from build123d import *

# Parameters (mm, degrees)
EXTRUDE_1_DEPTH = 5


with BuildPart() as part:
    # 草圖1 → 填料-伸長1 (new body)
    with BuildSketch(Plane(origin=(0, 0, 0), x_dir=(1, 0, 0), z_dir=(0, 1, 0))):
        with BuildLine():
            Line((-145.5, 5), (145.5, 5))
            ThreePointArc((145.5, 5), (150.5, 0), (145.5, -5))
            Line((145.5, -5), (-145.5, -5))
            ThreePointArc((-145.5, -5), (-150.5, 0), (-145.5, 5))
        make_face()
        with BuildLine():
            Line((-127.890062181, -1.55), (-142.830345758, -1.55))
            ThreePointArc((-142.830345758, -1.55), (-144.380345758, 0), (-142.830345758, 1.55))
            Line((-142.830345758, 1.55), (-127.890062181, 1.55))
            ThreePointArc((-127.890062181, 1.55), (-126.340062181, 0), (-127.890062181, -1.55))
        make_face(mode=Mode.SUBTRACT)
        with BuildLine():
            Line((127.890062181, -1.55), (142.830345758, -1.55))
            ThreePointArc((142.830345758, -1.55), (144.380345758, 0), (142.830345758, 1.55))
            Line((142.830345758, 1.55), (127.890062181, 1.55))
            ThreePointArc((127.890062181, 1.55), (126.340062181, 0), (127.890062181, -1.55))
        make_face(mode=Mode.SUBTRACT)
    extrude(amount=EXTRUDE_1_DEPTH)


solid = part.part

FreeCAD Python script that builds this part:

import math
import FreeCAD as App
import Part
import Sketcher

doc = App.newDocument("Part")
params = doc.addObject("Spreadsheet::Sheet", "Params")
for row, (alias, value) in enumerate([
    ("sketch1_radius", "5 mm"),
    ("sketch1_width", "291 mm"),
    ("sketch1_radius2", "1.55 mm"),
    ("pad1_length", "5 mm"),
], start=1):
    params.set(f"A{row}", alias)
    params.set(f"B{row}", "=" + value)
    params.setAlias(f"B{row}", alias)

body = doc.addObject("PartDesign::Body", "Body")

sketch1 = doc.addObject("Sketcher::SketchObject", "Sketch")
body.addObject(sketch1)
sketch1.AttachmentSupport = (doc.XZ_Plane, [""])
sketch1.MapMode = "FlatFace"
sketch1.addGeometry([
    Part.LineSegment(App.Vector(145.5, -5, 0), App.Vector(-145.5, -5, 0)),
    Part.ArcOfCircle(Part.Circle(App.Vector(-145.5, 0, 0), App.Vector(0, 0, 1), 5), math.radians(90), math.radians(270)),
    Part.LineSegment(App.Vector(-145.5, 5, 0), App.Vector(145.5, 5, 0)),
    Part.ArcOfCircle(Part.Circle(App.Vector(145.5, 0, 0), App.Vector(0, 0, 1), 5), math.radians(-90), math.radians(90)),
    Part.ArcOfCircle(Part.Circle(App.Vector(127.890062, 0, 0), App.Vector(0, 0, 1), 1.55), math.radians(90), math.radians(270)),
    Part.LineSegment(App.Vector(127.890062, -1.55, 0), App.Vector(142.830346, -1.55, 0)),
    Part.ArcOfCircle(Part.Circle(App.Vector(142.830346, 0, 0), App.Vector(0, 0, 1), 1.55), math.radians(-90), math.radians(90)),
    Part.LineSegment(App.Vector(142.830346, 1.55, 0), App.Vector(127.890062, 1.55, 0)),
    Part.LineSegment(App.Vector(-127.890062, 1.55, 0), App.Vector(-142.830346, 1.55, 0)),
    Part.ArcOfCircle(Part.Circle(App.Vector(-142.830346, 0, 0), App.Vector(0, 0, 1), 1.55), math.radians(90), math.radians(270)),
    Part.LineSegment(App.Vector(-142.830346, -1.55, 0), App.Vector(-127.890062, -1.55, 0)),
    Part.ArcOfCircle(Part.Circle(App.Vector(-127.890062, 0, 0), App.Vector(0, 0, 1), 1.55), math.radians(-90), math.radians(90)),
], False)
sketch1.addConstraint([
    Sketcher.Constraint("Tangent", 0, 2, 1, 2),
    Sketcher.Constraint("Tangent", 1, 1, 2, 1),
    Sketcher.Constraint("Tangent", 2, 2, 3, 2),
    Sketcher.Constraint("Tangent", 3, 1, 0, 1),
    Sketcher.Constraint("Tangent", 4, 2, 5, 1),
    Sketcher.Constraint("Tangent", 5, 2, 6, 1),
    Sketcher.Constraint("Tangent", 6, 2, 7, 1),
    Sketcher.Constraint("Tangent", 7, 2, 4, 1),
    Sketcher.Constraint("Tangent", 8, 2, 9, 1),
    Sketcher.Constraint("Tangent", 9, 2, 10, 1),
    Sketcher.Constraint("Tangent", 10, 2, 11, 1),
    Sketcher.Constraint("Tangent", 11, 2, 8, 1),
    Sketcher.Constraint("Horizontal", 0),
    Sketcher.Constraint("Horizontal", 2),
    Sketcher.Constraint("Horizontal", 5),
    Sketcher.Constraint("Horizontal", 7),
    Sketcher.Constraint("Horizontal", 8),
    Sketcher.Constraint("Horizontal", 10),
    Sketcher.Constraint("Equal", 6, 9),
    Sketcher.Constraint("Symmetric", 1, 3, 3, 3, -1, 1),
    Sketcher.Constraint("Symmetric", 6, 3, 9, 3, -1, 1),
    Sketcher.Constraint("Symmetric", 4, 3, 11, 3, -2),
    Sketcher.Constraint("Radius", 1, 5.0),
    Sketcher.Constraint("DistanceX", 0, 2, 0, 1, 291.0),
    Sketcher.Constraint("Radius", 4, 1.55),
    Sketcher.Constraint("DistanceX", 5, 1, 5, 2, 14.940284),
    Sketcher.Constraint("DistanceX", 9, 3, 6, 3, 285.660692),
])
sketch1.setExpression("Constraints[22]", "Params.sketch1_radius")
sketch1.setExpression("Constraints[23]", "Params.sketch1_width")
sketch1.setExpression("Constraints[24]", "Params.sketch1_radius2")
pad1 = doc.addObject("PartDesign::Pad", "Pad")
body.addObject(pad1)
pad1.Profile = sketch1
pad1.setExpression("Length", "Params.pad1_length")
pad1.Reversed = True

doc.recompute()
